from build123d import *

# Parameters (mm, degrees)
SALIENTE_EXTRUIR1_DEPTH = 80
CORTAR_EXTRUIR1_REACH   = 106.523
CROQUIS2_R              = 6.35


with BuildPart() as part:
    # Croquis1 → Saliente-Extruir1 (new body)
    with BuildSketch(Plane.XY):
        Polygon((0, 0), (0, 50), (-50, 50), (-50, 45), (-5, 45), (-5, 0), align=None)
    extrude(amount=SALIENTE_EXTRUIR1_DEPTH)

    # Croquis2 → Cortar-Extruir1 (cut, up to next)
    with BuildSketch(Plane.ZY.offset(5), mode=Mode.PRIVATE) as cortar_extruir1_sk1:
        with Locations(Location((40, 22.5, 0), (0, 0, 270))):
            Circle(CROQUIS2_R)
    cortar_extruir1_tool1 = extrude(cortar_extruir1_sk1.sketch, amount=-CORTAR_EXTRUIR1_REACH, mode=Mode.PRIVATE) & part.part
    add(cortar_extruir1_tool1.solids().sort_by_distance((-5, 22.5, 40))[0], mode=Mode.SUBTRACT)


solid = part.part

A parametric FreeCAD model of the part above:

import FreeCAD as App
import Part
import Sketcher
Q = App.Units.Quantity

doc = App.newDocument("Part")
body = doc.addObject("PartDesign::Body", "Body")

# Sketch on XY plane
sketch1 = body.newObject("Sketcher::SketchObject", "Sketch")
sketch1.AttachmentSupport = (doc.getObject("XY_Plane"), [""])
sketch1.MapMode = "FlatFace"
sketch1.addGeometry([
    Part.LineSegment(App.Vector(0, 0, 0), App.Vector(0, 50, 0)),  # 0
    Part.LineSegment(App.Vector(0, 50, 0), App.Vector(-50, 50, 0)),  # 1
    Part.LineSegment(App.Vector(-50, 50, 0), App.Vector(-50, 45, 0)),  # 2
    Part.LineSegment(App.Vector(-50, 45, 0), App.Vector(-5, 45, 0)),  # 3
    Part.LineSegment(App.Vector(-5, 45, 0), App.Vector(-5, 0, 0)),  # 4
    Part.LineSegment(App.Vector(-5, 0, 0), App.Vector(0, 0, 0)),  # 5
], False)
sketch1.addConstraint([
    Sketcher.Constraint("Coincident", 0, 2, 1, 1),
    Sketcher.Constraint("Coincident", 1, 2, 2, 1),
    Sketcher.Constraint("Coincident", 2, 2, 3, 1),
    Sketcher.Constraint("Coincident", 3, 2, 4, 1),
    Sketcher.Constraint("Coincident", 4, 2, 5, 1),
    Sketcher.Constraint("Coincident", 5, 2, 0, 1),
    Sketcher.Constraint("Vertical", 0),
    Sketcher.Constraint("Horizontal", 1),
    Sketcher.Constraint("Vertical", 2),
    Sketcher.Constraint("Horizontal", 3),
    Sketcher.Constraint("Vertical", 4),
    Sketcher.Constraint("Horizontal", 5),
    Sketcher.Constraint("Coincident", 5, 2, -1, 1),
    Sketcher.Constraint("Equal", 1, 0),
    Sketcher.Constraint("Equal", 5, 2),
    Sketcher.Constraint("DistanceX", 1, 2, 1, 1, Q("50 mm")),
    Sketcher.Constraint("DistanceX", 3, 1, 3, 2, Q("45 mm")),
])
pad1 = body.newObject("PartDesign::Pad", "Pad")
pad1.Profile = sketch1
pad1.Length = 80

# Sketch on YZ plane
sketch2 = body.newObject("Sketcher::SketchObject", "Sketch001")
sketch2.AttachmentSupport = (doc.getObject("YZ_Plane"), [""])
sketch2.MapMode = "FlatFace"
sketch2.AttachmentOffset = App.Placement(App.Vector(0, 0, -5), App.Rotation())
sketch2.addGeometry(Part.Circle(App.Vector(22, 40, 0), App.Vector(0, 0, 1), 6), False)
sketch2.addConstraint([
    Sketcher.Constraint("Diameter", 0, Q("12.7 mm")),
    Sketcher.Constraint("DistanceY", -1, 1, 0, 3, Q("40 mm")),
    Sketcher.Constraint("DistanceX", -1, 1, 0, 3, Q("22.5 mm")),
])
pocket1 = body.newObject("PartDesign::Pocket", "Pocket")
pocket1.Profile = sketch2
pocket1.Type = "UpToFirst"
pocket1.Reversed = True

doc.recompute()
